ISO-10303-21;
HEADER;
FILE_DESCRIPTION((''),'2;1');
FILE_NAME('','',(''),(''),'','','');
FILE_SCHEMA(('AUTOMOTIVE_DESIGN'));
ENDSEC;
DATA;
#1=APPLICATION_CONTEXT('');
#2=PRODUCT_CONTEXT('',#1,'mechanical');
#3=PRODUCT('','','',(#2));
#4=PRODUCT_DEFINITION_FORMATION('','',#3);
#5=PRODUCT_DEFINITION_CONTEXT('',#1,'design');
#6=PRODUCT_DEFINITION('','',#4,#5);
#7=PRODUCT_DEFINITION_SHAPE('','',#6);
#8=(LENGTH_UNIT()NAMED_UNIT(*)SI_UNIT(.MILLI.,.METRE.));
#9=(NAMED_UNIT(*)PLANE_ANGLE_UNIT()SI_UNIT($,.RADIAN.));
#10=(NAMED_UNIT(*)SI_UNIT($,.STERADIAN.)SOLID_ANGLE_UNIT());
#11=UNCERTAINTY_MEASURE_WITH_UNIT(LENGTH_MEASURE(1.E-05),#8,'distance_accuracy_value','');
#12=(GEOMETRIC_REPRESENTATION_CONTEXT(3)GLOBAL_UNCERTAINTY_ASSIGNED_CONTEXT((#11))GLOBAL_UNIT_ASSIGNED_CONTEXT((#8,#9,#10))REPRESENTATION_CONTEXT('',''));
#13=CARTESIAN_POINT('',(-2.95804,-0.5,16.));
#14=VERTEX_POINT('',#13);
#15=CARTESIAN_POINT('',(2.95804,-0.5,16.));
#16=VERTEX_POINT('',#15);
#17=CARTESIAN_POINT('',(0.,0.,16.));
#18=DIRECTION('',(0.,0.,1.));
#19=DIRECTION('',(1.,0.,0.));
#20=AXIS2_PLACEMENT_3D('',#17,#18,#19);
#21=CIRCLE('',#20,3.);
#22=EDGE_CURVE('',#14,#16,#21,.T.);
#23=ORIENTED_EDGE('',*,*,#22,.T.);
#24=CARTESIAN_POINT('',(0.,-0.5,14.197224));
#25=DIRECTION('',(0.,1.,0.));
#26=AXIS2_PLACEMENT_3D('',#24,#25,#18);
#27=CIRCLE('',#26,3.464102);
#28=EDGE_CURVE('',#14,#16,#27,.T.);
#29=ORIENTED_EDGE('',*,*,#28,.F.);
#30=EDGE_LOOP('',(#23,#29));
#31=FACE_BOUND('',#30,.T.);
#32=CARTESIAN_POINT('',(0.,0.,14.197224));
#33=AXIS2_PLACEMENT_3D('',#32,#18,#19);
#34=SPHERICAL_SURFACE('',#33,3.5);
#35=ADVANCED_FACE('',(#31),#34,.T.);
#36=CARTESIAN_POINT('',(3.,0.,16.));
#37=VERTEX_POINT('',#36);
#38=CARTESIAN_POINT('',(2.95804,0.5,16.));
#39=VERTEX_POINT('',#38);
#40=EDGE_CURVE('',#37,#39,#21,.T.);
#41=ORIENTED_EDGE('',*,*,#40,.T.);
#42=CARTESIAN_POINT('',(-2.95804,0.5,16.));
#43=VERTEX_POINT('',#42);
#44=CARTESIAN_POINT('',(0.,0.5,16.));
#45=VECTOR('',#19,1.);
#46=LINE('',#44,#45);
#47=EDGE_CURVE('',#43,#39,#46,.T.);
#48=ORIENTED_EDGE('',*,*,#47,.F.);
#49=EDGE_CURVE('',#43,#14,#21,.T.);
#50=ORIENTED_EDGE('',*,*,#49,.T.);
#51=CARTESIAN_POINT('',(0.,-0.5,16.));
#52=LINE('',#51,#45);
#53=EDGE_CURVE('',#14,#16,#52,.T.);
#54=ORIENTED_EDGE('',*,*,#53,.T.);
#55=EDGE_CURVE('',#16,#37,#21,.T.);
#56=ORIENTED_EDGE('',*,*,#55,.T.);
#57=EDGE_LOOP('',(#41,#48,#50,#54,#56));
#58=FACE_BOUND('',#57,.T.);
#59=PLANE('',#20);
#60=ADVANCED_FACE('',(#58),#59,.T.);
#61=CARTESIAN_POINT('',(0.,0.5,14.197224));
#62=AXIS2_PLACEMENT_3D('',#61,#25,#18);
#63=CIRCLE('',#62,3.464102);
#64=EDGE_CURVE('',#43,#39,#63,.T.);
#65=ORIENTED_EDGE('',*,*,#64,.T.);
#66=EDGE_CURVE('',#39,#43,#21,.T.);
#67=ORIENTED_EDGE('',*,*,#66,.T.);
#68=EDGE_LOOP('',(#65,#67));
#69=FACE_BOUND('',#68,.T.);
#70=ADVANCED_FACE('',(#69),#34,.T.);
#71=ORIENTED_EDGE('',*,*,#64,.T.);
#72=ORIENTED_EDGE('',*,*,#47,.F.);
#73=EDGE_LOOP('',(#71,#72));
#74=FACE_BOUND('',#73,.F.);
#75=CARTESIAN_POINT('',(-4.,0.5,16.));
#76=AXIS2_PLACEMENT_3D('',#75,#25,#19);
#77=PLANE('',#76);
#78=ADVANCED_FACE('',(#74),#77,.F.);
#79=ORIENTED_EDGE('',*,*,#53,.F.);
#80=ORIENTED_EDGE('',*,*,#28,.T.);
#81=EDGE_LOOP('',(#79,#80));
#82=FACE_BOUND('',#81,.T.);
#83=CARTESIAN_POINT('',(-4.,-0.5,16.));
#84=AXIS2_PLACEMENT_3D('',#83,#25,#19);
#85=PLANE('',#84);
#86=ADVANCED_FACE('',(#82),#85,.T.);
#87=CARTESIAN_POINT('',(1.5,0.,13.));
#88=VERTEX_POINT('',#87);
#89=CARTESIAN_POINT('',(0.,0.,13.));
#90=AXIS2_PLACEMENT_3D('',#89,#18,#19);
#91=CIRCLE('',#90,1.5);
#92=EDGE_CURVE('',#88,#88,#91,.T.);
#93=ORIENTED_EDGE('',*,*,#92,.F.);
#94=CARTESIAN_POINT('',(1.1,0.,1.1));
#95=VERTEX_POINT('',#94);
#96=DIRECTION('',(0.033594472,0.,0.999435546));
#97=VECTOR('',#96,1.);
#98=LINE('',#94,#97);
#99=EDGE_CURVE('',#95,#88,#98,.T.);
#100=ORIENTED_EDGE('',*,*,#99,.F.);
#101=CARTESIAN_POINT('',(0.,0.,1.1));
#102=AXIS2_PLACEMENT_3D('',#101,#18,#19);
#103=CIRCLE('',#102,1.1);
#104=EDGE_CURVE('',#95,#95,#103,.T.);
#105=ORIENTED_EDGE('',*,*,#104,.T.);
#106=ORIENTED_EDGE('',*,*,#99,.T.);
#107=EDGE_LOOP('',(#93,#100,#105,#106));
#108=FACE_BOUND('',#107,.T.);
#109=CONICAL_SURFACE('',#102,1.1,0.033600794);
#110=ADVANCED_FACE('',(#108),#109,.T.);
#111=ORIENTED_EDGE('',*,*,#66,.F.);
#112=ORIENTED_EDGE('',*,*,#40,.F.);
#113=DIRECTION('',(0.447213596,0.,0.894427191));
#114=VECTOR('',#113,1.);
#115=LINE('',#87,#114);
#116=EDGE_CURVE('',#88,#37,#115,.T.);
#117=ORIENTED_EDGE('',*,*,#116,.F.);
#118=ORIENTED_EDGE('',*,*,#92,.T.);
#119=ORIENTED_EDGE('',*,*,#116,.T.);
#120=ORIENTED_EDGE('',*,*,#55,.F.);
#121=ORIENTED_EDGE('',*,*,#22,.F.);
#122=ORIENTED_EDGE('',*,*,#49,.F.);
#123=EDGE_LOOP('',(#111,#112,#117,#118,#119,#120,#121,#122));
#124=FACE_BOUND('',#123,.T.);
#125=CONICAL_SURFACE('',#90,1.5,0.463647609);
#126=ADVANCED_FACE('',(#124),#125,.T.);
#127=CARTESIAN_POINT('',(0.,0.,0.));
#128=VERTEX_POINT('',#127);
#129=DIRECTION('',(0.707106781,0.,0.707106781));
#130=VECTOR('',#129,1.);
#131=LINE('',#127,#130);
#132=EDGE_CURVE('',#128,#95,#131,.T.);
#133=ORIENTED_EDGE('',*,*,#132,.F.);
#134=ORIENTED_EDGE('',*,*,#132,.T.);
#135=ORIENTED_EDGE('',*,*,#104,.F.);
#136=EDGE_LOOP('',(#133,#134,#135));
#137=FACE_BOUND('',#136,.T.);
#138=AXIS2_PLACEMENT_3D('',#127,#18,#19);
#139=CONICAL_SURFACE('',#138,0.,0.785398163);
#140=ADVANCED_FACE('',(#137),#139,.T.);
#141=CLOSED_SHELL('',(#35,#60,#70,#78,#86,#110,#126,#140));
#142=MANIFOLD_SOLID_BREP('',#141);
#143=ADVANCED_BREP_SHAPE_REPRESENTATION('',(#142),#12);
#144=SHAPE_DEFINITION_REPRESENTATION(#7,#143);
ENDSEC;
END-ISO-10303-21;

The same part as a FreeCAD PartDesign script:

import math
import FreeCAD as App
import Part
import Sketcher
Q = App.Units.Quantity


def add_polygon(sketch, points):
    """Adds a closed chain of lines whose ends are joined by coincident constraints."""
    first, n = sketch.GeometryCount, len(points)
    for a, b in zip(points, points[1:] + points[:1]):
        sketch.addGeometry(Part.LineSegment(App.Vector(*a, 0), App.Vector(*b, 0)), False)
    for i in range(n):
        sketch.addConstraint(Sketcher.Constraint("Coincident", first + i, 2, first + (i + 1) % n, 1))

doc = App.newDocument("Part")
body = doc.addObject("PartDesign::Body", "Body")

# Sketch on XZ plane
sketch1 = body.newObject("Sketcher::SketchObject", "Sketch")
sketch1.AttachmentSupport = (doc.getObject("XZ_Plane"), [""])
sketch1.MapMode = "FlatFace"
sketch1.addGeometry([
    Part.LineSegment(App.Vector(0, 17.7, 0), App.Vector(0, 0, 0)),  # 0
    Part.LineSegment(App.Vector(0, 0, 0), App.Vector(1.1, 1.1, 0)),  # 1
    Part.LineSegment(App.Vector(1.1, 1.1, 0), App.Vector(1.5, 13, 0)),  # 2
    Part.LineSegment(App.Vector(1.5, 13, 0), App.Vector(3, 16, 0)),  # 3
    Part.ArcOfCircle(Part.Circle(App.Vector(0, 14.2, 0), App.Vector(0, 0, 1), 3.5), math.radians(31), math.radians(90)),  # 4
], False)
sketch1.addConstraint([
    Sketcher.Constraint("Coincident", 0, 2, 1, 1),
    Sketcher.Constraint("Coincident", 1, 2, 2, 1),
    Sketcher.Constraint("Coincident", 2, 2, 3, 1),
    Sketcher.Constraint("Coincident", 3, 2, 4, 1),
    Sketcher.Constraint("Coincident", 4, 2, 0, 1),
    Sketcher.Constraint("Vertical", 0),
    Sketcher.Constraint("Coincident", 0, 2, -1, 1),
    Sketcher.Constraint("PointOnObject", 4, 3, -2),
    Sketcher.Constraint("Radius", 4, Q("3.5 mm")),
    Sketcher.Constraint("Angle", 1, Q("45 deg")),
    Sketcher.Constraint("DistanceY", -1, 1, 2, 2, Q("13 mm")),
    Sketcher.Constraint("DistanceX", -1, 1, 3, 2, Q("3 mm")),
    Sketcher.Constraint("DistanceY", -1, 1, 3, 2, Q("16 mm")),
    Sketcher.Constraint("DistanceX", -1, 1, 1, 2, Q("1.1 mm")),
    Sketcher.Constraint("DistanceX", -1, 1, 2, 2, Q("1.5 mm")),
])
revolution = body.newObject("PartDesign::Revolution", "Revolution")
revolution.Profile = sketch1
revolution.ReferenceAxis = (sketch1, ["V_Axis"])
revolution.Angle = 360

# Sketch on XY plane
sketch2 = body.newObject("Sketcher::SketchObject", "Sketch001")
sketch2.AttachmentSupport = (doc.getObject("XY_Plane"), [""])
sketch2.MapMode = "FlatFace"
sketch2.AttachmentOffset = App.Placement(App.Vector(0, 0, 16), App.Rotation())
add_polygon(sketch2, [(-4, 0.5), (-4, -0.5), (4, -0.5), (4, 0.5)])  # lines 0-3
sketch2.addConstraint([
    Sketcher.Constraint("Vertical", 0),
    Sketcher.Constraint("Horizontal", 1),
    Sketcher.Constraint("Vertical", 2),
    Sketcher.Constraint("Horizontal", 3),
    Sketcher.Constraint("Symmetric", 0, 2, 2, 2, -1, 1),
    Sketcher.Constraint("DistanceX", 1, 1, 1, 2, Q("8 mm")),
    Sketcher.Constraint("DistanceY", 0, 2, 0, 1, Q("1 mm")),
])
pocket1 = body.newObject("PartDesign::Pocket", "Pocket")
pocket1.Profile = sketch2
pocket1.Length = 2.4
pocket1.Reversed = True

doc.recompute()
